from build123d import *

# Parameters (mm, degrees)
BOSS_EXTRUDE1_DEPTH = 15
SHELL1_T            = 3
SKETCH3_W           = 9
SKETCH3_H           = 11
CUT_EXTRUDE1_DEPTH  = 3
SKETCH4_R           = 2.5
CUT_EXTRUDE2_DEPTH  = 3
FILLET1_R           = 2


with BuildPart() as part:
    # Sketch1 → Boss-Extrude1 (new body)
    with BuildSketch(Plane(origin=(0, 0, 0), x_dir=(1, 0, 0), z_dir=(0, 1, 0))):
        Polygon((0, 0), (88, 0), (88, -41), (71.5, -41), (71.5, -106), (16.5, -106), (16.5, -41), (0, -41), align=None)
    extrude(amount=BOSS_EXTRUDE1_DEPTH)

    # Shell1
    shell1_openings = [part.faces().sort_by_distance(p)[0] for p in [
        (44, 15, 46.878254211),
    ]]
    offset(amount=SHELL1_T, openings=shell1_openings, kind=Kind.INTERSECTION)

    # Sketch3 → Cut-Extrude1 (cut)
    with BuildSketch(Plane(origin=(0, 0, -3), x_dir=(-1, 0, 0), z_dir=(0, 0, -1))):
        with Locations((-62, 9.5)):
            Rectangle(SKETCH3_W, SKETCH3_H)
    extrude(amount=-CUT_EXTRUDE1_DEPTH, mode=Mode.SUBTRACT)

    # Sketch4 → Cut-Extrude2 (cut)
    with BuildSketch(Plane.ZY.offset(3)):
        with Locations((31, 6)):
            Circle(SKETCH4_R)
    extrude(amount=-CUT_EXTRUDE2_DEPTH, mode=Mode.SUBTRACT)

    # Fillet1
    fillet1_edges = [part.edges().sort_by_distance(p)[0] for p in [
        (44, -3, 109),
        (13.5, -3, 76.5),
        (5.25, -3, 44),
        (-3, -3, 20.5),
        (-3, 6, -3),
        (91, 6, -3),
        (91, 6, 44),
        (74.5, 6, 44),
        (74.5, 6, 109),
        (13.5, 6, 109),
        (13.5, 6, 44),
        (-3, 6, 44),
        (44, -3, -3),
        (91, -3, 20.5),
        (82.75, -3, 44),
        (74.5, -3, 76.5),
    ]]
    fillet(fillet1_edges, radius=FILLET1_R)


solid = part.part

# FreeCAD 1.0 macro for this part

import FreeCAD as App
import Part
import Sketcher


def edges_at(feature, points):
    """Names of the edges that pass closest to the given points."""
    edges = feature.Shape.Edges
    near = lambda p: min(range(len(edges)), key=lambda i: edges[i].distToShape(Part.Vertex(*p))[0])
    return sorted({f"Edge{near(p) + 1}" for p in points})


def faces_at(feature, points):
    """Names of the faces that lie closest to the given points."""
    faces = feature.Shape.Faces
    near = lambda p: min(range(len(faces)), key=lambda i: faces[i].distToShape(Part.Vertex(*p))[0])
    return sorted({f"Face{near(p) + 1}" for p in points})

doc = App.newDocument("Part")
body = doc.addObject("PartDesign::Body", "Body")

# Sketch on XZ plane
sketch1 = body.newObject("Sketcher::SketchObject", "Sketch")
sketch1.AttachmentSupport = (doc.getObject("XZ_Plane"), [""])
sketch1.MapMode = "FlatFace"
sketch1.addGeometry([
    Part.LineSegment(App.Vector(88, 0, 0), App.Vector(0, 0, 0)),  # 0
    Part.LineSegment(App.Vector(0, 0, 0), App.Vector(0, 41, 0)),  # 1
    Part.LineSegment(App.Vector(0, 41, 0), App.Vector(16.5, 41, 0)),  # 2
    Part.LineSegment(App.Vector(16.5, 41, 0), App.Vector(16.5, 106, 0)),  # 3
    Part.LineSegment(App.Vector(16.5, 106, 0), App.Vector(71.5, 106, 0)),  # 4
    Part.LineSegment(App.Vector(71.5, 106, 0), App.Vector(71.5, 41, 0)),  # 5
    Part.LineSegment(App.Vector(71.5, 41, 0), App.Vector(88, 41, 0)),  # 6
    Part.LineSegment(App.Vector(88, 41, 0), App.Vector(88, 0, 0)),  # 7
], False)
sketch1.addConstraint([
    Sketcher.Constraint("Coincident", 0, 2, 1, 1),
    Sketcher.Constraint("Coincident", 1, 2, 2, 1),
    Sketcher.Constraint("Coincident", 2, 2, 3, 1),
    Sketcher.Constraint("Coincident", 3, 2, 4, 1),
    Sketcher.Constraint("Coincident", 4, 2, 5, 1),
    Sketcher.Constraint("Coincident", 5, 2, 6, 1),
    Sketcher.Constraint("Coincident", 6, 2, 7, 1),
    Sketcher.Constraint("Coincident", 7, 2, 0, 1),
    Sketcher.Constraint("Horizontal", 0),
    Sketcher.Constraint("Vertical", 1),
    Sketcher.Constraint("Horizontal", 2),
    Sketcher.Constraint("Vertical", 3),
    Sketcher.Constraint("Horizontal", 4),
    Sketcher.Constraint("Vertical", 5),
    Sketcher.Constraint("Horizontal", 6),
    Sketcher.Constraint("Vertical", 7),
    Sketcher.Constraint("Coincident", 0, 2, -1, 1),
    Sketcher.Constraint("Horizontal", 2, 2, 5, 2),
    Sketcher.Constraint("Equal", 2, 6),
    Sketcher.Constraint("DistanceX", 0, 2, 0, 1, 88.0),
    Sketcher.Constraint("DistanceX", 4, 1, 4, 2, 55.0),
    Sketcher.Constraint("DistanceY", 1, 1, 1, 2, 41.0),
    Sketcher.Constraint("DistanceY", 3, 1, 3, 2, 65.0),
])
pad1 = body.newObject("PartDesign::Pad", "Pad")
pad1.Profile = sketch1
pad1.Length = 15
pad1.Reversed = True
doc.recompute()

thickness = body.newObject("PartDesign::Thickness", "Thickness")
thickness.Base = (pad1, faces_at(pad1, [(44, 15, 53)]))
thickness.Value = 3
thickness.Reversed = False
thickness.Join = "Intersection"

# Sketch on XY plane
sketch2 = body.newObject("Sketcher::SketchObject", "Sketch001")
sketch2.AttachmentSupport = (doc.getObject("XY_Plane"), [""])
sketch2.MapMode = "FlatFace"
sketch2.AttachmentOffset = App.Placement(App.Vector(0, 0, -3), App.Rotation())
sketch2.addGeometry([
    Part.LineSegment(App.Vector(66.5, 15, 0), App.Vector(66.5, 4, 0)),
    Part.LineSegment(App.Vector(66.5, 4, 0), App.Vector(57.5, 4, 0)),
    Part.LineSegment(App.Vector(57.5, 4, 0), App.Vector(57.5, 15, 0)),
    Part.LineSegment(App.Vector(57.5, 15, 0), App.Vector(66.5, 15, 0)),
], False)
sketch2.addConstraint([
    Sketcher.Constraint("Coincident", 0, 2, 1, 1),
    Sketcher.Constraint("Coincident", 1, 2, 2, 1),
    Sketcher.Constraint("Coincident", 2, 2, 3, 1),
    Sketcher.Constraint("Coincident", 3, 2, 0, 1),
    Sketcher.Constraint("Vertical", 0),
    Sketcher.Constraint("Horizontal", 1),
    Sketcher.Constraint("Vertical", 2),
    Sketcher.Constraint("Horizontal", 3),
    Sketcher.Constraint("DistanceX", 1, 2, 1, 1, 9.0),
    Sketcher.Constraint("DistanceY", 0, 2, 0, 1, 11.0),
    Sketcher.Constraint("DistanceY", -1, 1, 0, 2, 4.0),
    Sketcher.Constraint("DistanceX", -1, 1, 0, 2, 66.5),
])
pocket1 = body.newObject("PartDesign::Pocket", "Pocket")
pocket1.Profile = sketch2
pocket1.Length = 3
pocket1.Reversed = True

# Sketch on YZ plane
sketch3 = body.newObject("Sketcher::SketchObject", "Sketch002")
sketch3.AttachmentSupport = (doc.getObject("YZ_Plane"), [""])
sketch3.MapMode = "FlatFace"
sketch3.AttachmentOffset = App.Placement(App.Vector(0, 0, -3), App.Rotation())
sketch3.addGeometry(Part.Circle(App.Vector(6, 31, 0), App.Vector(0, 0, 1), 2.5), False)
sketch3.addConstraint([
    Sketcher.Constraint("Diameter", 0, 5.0),
    Sketcher.Constraint("DistanceX", -1, 1, 0, 3, 6.0),
    Sketcher.Constraint("DistanceY", -1, 1, 0, 3, 31.0),
])
pocket2 = body.newObject("PartDesign::Pocket", "Pocket001")
pocket2.Profile = sketch3
pocket2.Length = 3
pocket2.Reversed = True
doc.recompute()

fillet = body.newObject("PartDesign::Fillet", "Fillet")
fillet.Base = (pocket2, edges_at(pocket2, [
    (44, -3, 109),
    (13.5, -3, 76.5),
    (5.25, -3, 44),
    (-3, -3, 20.5),
    (-3, 6, -3),
    (91, 6, -3),
    (91, 6, 44),
    (74.5, 6, 44),
    (74.5, 6, 109),
    (13.5, 6, 109),
    (13.5, 6, 44),
    (-3, 6, 44),
    (44, -3, -3),
    (91, -3, 20.5),
    (82.75, -3, 44),
    (74.5, -3, 76.5),
]))
fillet.Radius = 2

doc.recompute()
